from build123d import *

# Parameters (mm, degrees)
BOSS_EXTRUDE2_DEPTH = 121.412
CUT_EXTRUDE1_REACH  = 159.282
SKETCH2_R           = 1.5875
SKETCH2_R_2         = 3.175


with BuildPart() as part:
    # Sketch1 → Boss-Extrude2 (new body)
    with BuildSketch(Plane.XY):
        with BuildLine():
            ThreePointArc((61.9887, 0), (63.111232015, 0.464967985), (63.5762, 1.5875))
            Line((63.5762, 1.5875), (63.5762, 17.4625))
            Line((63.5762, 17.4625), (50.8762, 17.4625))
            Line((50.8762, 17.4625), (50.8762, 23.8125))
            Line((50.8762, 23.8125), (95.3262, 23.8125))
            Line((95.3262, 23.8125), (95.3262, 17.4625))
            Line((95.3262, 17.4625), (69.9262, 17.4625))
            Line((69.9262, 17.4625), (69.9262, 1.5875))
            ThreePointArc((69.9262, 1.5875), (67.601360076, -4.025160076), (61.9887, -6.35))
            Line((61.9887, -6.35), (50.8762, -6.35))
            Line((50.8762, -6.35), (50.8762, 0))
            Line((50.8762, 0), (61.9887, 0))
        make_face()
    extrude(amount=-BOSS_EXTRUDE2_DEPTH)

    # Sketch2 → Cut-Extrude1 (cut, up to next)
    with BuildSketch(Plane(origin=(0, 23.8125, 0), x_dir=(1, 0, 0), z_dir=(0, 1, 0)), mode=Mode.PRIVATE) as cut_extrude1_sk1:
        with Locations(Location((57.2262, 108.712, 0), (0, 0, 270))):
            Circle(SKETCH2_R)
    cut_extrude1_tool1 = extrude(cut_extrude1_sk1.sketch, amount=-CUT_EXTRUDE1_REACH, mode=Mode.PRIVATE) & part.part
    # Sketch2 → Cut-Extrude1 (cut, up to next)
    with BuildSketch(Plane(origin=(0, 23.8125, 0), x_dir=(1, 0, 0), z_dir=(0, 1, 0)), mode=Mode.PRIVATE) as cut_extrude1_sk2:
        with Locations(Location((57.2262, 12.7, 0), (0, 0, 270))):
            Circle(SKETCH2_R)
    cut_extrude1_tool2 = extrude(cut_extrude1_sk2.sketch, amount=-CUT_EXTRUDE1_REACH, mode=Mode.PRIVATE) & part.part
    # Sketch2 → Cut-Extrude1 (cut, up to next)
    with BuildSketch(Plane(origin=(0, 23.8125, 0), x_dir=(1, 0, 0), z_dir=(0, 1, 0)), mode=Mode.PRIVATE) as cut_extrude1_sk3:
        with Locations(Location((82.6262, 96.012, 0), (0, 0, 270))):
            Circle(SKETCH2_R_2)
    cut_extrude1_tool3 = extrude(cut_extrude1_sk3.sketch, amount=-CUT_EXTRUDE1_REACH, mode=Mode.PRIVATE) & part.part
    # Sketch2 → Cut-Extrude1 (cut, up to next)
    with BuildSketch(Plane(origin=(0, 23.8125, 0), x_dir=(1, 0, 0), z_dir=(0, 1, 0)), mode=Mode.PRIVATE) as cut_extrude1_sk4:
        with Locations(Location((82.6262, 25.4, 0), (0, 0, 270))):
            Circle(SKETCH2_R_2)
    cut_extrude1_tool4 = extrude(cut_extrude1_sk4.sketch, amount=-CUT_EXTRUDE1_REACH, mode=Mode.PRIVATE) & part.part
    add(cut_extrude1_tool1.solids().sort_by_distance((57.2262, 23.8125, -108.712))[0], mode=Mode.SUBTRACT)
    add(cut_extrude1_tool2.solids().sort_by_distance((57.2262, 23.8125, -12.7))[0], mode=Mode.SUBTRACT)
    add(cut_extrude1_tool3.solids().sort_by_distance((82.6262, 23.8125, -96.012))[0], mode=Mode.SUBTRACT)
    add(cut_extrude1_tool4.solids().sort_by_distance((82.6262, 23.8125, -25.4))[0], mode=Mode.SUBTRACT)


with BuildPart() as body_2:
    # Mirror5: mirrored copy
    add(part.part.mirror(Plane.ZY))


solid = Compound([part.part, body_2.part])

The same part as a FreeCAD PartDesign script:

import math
import FreeCAD as App
import Part
import Sketcher
from FreeCAD import Vector
Q = App.Units.Quantity

doc = App.newDocument("Part")
body = doc.addObject("PartDesign::Body", "Body")

# Sketch on XY plane
sketch1 = doc.addObject("Sketcher::SketchObject", "Sketch")
body.addObject(sketch1)
sketch1.AttachmentSupport = (doc.XY_Plane, [""])
sketch1.MapMode = "FlatFace"
sketch1.addGeometry([
    Part.ArcOfCircle(Part.Circle(Vector(62, 1.6, 0), Vector(0, 0, 1), 1.6), math.radians(-90), math.radians(0)),  # 0
    Part.LineSegment(Vector(62, 0, 0), Vector(50.9, 0, 0)),  # 1
    Part.LineSegment(Vector(50.9, 0, 0), Vector(50.9, -6.3, 0)),  # 2
    Part.LineSegment(Vector(50.9, -6.3, 0), Vector(62, -6.3, 0)),  # 3
    Part.ArcOfCircle(Part.Circle(Vector(62, 1.6, 0), Vector(0, 0, 1), 7.9), math.radians(-90), math.radians(0)),  # 4
    Part.LineSegment(Vector(69.9, 1.6, 0), Vector(69.9, 17.5, 0)),  # 5
    Part.LineSegment(Vector(69.9, 17.5, 0), Vector(95.3, 17.5, 0)),  # 6
    Part.LineSegment(Vector(95.3, 17.5, 0), Vector(95.3, 23.8, 0)),  # 7
    Part.LineSegment(Vector(95.3, 23.8, 0), Vector(50.9, 23.8, 0)),  # 8
    Part.LineSegment(Vector(50.9, 23.8, 0), Vector(50.9, 17.5, 0)),  # 9
    Part.LineSegment(Vector(50.9, 17.5, 0), Vector(63.6, 17.5, 0)),  # 10
    Part.LineSegment(Vector(63.6, 17.5, 0), Vector(63.6, 1.6, 0)),  # 11
], False)
sketch1.addConstraint([
    Sketcher.Constraint("Tangent", 0, 1, 1, 1),
    Sketcher.Constraint("Coincident", 1, 2, 2, 1),
    Sketcher.Constraint("Coincident", 2, 2, 3, 1),
    Sketcher.Constraint("Tangent", 3, 2, 4, 1),
    Sketcher.Constraint("Tangent", 4, 2, 5, 1),
    Sketcher.Constraint("Coincident", 5, 2, 6, 1),
    Sketcher.Constraint("Coincident", 6, 2, 7, 1),
    Sketcher.Constraint("Coincident", 7, 2, 8, 1),
    Sketcher.Constraint("Coincident", 8, 2, 9, 1),
    Sketcher.Constraint("Coincident", 9, 2, 10, 1),
    Sketcher.Constraint("Coincident", 10, 2, 11, 1),
    Sketcher.Constraint("Tangent", 11, 2, 0, 2),
    Sketcher.Constraint("Horizontal", 1),
    Sketcher.Constraint("Vertical", 2),
    Sketcher.Constraint("Horizontal", 3),
    Sketcher.Constraint("Vertical", 5),
    Sketcher.Constraint("Horizontal", 6),
    Sketcher.Constraint("Vertical", 7),
    Sketcher.Constraint("Horizontal", 8),
    Sketcher.Constraint("Vertical", 9),
    Sketcher.Constraint("Horizontal", 10),
    Sketcher.Constraint("Vertical", 11),
    Sketcher.Constraint("Coincident", 4, 3, 0, 3),
    Sketcher.Constraint("PointOnObject", 0, 1, -1),
    Sketcher.Constraint("Horizontal", 6, 2, 9, 2),
    Sketcher.Constraint("Vertical", 2, 2, 8, 2),
    Sketcher.Constraint("Equal", 2, 7),
    Sketcher.Constraint("DistanceX", 6, 1, 6, 2, Q("1 in")),
    Sketcher.Constraint("DistanceX", 10, 1, 10, 2, Q("0.5 in")),
    Sketcher.Constraint("Radius", 0, Q("0.0625 in")),
    Sketcher.Constraint("Radius", 4, Q("0.3125 in")),
    Sketcher.Constraint("DistanceY", 5, 1, 5, 2, Q("0.625 in")),
    Sketcher.Constraint("DistanceX", -1, 1, 1, 2, Q("2.003 in")),
])
pad1 = doc.addObject("PartDesign::Pad", "Pad")
body.addObject(pad1)
pad1.Profile = sketch1
pad1.Length = Q("4.78 in")
pad1.Reversed = True

# Sketch on XZ plane
sketch2 = doc.addObject("Sketcher::SketchObject", "Sketch001")
body.addObject(sketch2)
sketch2.AttachmentSupport = (doc.XZ_Plane, [""])
sketch2.MapMode = "FlatFace"
sketch2.AttachmentOffset = App.Placement(Vector(0, 0, -0.9375 * 25.4), App.Rotation())
sketch2.addGeometry(Part.Circle(Vector(57.2, -108.7, 0), Vector(0, 0, 1), 1.6), False)
sketch2.addConstraint([
    Sketcher.Constraint("Diameter", 0, Q("0.125 in")),
    Sketcher.Constraint("DistanceY", 0, 3, -1, 1, Q("4.28 in")),
    Sketcher.Constraint("DistanceX", -1, 1, 0, 3, Q("2.253 in")),
])
pocket1 = doc.addObject("PartDesign::Pocket", "Pocket")
body.addObject(pocket1)
pocket1.Profile = sketch2
pocket1.Type = "UpToFirst"
pocket1.Reversed = True

# Sketch on XZ plane
sketch3 = doc.addObject("Sketcher::SketchObject", "Sketch002")
body.addObject(sketch3)
sketch3.AttachmentSupport = (doc.XZ_Plane, [""])
sketch3.MapMode = "FlatFace"
sketch3.AttachmentOffset = App.Placement(Vector(0, 0, -0.9375 * 25.4), App.Rotation())
sketch3.addGeometry(Part.Circle(Vector(57.2, -12.7, 0), Vector(0, 0, 1), 1.6), False)
sketch3.addConstraint([
    Sketcher.Constraint("Diameter", 0, Q("0.125 in")),
    Sketcher.Constraint("DistanceY", 0, 3, -1, 1, Q("0.5 in")),
    Sketcher.Constraint("DistanceX", -1, 1, 0, 3, Q("2.253 in")),
])
pocket2 = doc.addObject("PartDesign::Pocket", "Pocket001")
body.addObject(pocket2)
pocket2.Profile = sketch3
pocket2.Type = "UpToFirst"
pocket2.Reversed = True

# Sketch on XZ plane
sketch4 = doc.addObject("Sketcher::SketchObject", "Sketch003")
body.addObject(sketch4)
sketch4.AttachmentSupport = (doc.XZ_Plane, [""])
sketch4.MapMode = "FlatFace"
sketch4.AttachmentOffset = App.Placement(Vector(0, 0, -0.9375 * 25.4), App.Rotation())
sketch4.addGeometry(Part.Circle(Vector(82.6, -96, 0), Vector(0, 0, 1), 3.2), False)
sketch4.addConstraint([
    Sketcher.Constraint("Diameter", 0, Q("0.25 in")),
    Sketcher.Constraint("DistanceY", 0, 3, -1, 1, Q("3.78 in")),
    Sketcher.Constraint("DistanceX", -1, 1, 0, 3, Q("3.253 in")),
])
pocket3 = doc.addObject("PartDesign::Pocket", "Pocket002")
body.addObject(pocket3)
pocket3.Profile = sketch4
pocket3.Type = "UpToFirst"
pocket3.Reversed = True

# Sketch on XZ plane
sketch5 = doc.addObject("Sketcher::SketchObject", "Sketch004")
body.addObject(sketch5)
sketch5.AttachmentSupport = (doc.XZ_Plane, [""])
sketch5.MapMode = "FlatFace"
sketch5.AttachmentOffset = App.Placement(Vector(0, 0, -0.9375 * 25.4), App.Rotation())
sketch5.addGeometry(Part.Circle(Vector(82.6, -25.4, 0), Vector(0, 0, 1), 3.2), False)
sketch5.addConstraint([
    Sketcher.Constraint("Diameter", 0, Q("0.25 in")),
    Sketcher.Constraint("DistanceY", 0, 3, -1, 1, Q("1 in")),
    Sketcher.Constraint("DistanceX", -1, 1, 0, 3, Q("3.253 in")),
])
pocket4 = doc.addObject("PartDesign::Pocket", "Pocket003")
body.addObject(pocket4)
pocket4.Profile = sketch5
pocket4.Type = "UpToFirst"
pocket4.Reversed = True
body2 = doc.addObject("PartDesign::Body", "Body001")
doc.recompute()

mirroring = doc.addObject("Part::Mirroring", "Mirroring")
mirroring.Source = body
mirroring.Base = Vector(0, 0, 0)
mirroring.Normal = Vector(-1, 0, 0)
body2.BaseFeature = mirroring
doc.recompute()
mirroring.Visibility = False

doc.recompute()
